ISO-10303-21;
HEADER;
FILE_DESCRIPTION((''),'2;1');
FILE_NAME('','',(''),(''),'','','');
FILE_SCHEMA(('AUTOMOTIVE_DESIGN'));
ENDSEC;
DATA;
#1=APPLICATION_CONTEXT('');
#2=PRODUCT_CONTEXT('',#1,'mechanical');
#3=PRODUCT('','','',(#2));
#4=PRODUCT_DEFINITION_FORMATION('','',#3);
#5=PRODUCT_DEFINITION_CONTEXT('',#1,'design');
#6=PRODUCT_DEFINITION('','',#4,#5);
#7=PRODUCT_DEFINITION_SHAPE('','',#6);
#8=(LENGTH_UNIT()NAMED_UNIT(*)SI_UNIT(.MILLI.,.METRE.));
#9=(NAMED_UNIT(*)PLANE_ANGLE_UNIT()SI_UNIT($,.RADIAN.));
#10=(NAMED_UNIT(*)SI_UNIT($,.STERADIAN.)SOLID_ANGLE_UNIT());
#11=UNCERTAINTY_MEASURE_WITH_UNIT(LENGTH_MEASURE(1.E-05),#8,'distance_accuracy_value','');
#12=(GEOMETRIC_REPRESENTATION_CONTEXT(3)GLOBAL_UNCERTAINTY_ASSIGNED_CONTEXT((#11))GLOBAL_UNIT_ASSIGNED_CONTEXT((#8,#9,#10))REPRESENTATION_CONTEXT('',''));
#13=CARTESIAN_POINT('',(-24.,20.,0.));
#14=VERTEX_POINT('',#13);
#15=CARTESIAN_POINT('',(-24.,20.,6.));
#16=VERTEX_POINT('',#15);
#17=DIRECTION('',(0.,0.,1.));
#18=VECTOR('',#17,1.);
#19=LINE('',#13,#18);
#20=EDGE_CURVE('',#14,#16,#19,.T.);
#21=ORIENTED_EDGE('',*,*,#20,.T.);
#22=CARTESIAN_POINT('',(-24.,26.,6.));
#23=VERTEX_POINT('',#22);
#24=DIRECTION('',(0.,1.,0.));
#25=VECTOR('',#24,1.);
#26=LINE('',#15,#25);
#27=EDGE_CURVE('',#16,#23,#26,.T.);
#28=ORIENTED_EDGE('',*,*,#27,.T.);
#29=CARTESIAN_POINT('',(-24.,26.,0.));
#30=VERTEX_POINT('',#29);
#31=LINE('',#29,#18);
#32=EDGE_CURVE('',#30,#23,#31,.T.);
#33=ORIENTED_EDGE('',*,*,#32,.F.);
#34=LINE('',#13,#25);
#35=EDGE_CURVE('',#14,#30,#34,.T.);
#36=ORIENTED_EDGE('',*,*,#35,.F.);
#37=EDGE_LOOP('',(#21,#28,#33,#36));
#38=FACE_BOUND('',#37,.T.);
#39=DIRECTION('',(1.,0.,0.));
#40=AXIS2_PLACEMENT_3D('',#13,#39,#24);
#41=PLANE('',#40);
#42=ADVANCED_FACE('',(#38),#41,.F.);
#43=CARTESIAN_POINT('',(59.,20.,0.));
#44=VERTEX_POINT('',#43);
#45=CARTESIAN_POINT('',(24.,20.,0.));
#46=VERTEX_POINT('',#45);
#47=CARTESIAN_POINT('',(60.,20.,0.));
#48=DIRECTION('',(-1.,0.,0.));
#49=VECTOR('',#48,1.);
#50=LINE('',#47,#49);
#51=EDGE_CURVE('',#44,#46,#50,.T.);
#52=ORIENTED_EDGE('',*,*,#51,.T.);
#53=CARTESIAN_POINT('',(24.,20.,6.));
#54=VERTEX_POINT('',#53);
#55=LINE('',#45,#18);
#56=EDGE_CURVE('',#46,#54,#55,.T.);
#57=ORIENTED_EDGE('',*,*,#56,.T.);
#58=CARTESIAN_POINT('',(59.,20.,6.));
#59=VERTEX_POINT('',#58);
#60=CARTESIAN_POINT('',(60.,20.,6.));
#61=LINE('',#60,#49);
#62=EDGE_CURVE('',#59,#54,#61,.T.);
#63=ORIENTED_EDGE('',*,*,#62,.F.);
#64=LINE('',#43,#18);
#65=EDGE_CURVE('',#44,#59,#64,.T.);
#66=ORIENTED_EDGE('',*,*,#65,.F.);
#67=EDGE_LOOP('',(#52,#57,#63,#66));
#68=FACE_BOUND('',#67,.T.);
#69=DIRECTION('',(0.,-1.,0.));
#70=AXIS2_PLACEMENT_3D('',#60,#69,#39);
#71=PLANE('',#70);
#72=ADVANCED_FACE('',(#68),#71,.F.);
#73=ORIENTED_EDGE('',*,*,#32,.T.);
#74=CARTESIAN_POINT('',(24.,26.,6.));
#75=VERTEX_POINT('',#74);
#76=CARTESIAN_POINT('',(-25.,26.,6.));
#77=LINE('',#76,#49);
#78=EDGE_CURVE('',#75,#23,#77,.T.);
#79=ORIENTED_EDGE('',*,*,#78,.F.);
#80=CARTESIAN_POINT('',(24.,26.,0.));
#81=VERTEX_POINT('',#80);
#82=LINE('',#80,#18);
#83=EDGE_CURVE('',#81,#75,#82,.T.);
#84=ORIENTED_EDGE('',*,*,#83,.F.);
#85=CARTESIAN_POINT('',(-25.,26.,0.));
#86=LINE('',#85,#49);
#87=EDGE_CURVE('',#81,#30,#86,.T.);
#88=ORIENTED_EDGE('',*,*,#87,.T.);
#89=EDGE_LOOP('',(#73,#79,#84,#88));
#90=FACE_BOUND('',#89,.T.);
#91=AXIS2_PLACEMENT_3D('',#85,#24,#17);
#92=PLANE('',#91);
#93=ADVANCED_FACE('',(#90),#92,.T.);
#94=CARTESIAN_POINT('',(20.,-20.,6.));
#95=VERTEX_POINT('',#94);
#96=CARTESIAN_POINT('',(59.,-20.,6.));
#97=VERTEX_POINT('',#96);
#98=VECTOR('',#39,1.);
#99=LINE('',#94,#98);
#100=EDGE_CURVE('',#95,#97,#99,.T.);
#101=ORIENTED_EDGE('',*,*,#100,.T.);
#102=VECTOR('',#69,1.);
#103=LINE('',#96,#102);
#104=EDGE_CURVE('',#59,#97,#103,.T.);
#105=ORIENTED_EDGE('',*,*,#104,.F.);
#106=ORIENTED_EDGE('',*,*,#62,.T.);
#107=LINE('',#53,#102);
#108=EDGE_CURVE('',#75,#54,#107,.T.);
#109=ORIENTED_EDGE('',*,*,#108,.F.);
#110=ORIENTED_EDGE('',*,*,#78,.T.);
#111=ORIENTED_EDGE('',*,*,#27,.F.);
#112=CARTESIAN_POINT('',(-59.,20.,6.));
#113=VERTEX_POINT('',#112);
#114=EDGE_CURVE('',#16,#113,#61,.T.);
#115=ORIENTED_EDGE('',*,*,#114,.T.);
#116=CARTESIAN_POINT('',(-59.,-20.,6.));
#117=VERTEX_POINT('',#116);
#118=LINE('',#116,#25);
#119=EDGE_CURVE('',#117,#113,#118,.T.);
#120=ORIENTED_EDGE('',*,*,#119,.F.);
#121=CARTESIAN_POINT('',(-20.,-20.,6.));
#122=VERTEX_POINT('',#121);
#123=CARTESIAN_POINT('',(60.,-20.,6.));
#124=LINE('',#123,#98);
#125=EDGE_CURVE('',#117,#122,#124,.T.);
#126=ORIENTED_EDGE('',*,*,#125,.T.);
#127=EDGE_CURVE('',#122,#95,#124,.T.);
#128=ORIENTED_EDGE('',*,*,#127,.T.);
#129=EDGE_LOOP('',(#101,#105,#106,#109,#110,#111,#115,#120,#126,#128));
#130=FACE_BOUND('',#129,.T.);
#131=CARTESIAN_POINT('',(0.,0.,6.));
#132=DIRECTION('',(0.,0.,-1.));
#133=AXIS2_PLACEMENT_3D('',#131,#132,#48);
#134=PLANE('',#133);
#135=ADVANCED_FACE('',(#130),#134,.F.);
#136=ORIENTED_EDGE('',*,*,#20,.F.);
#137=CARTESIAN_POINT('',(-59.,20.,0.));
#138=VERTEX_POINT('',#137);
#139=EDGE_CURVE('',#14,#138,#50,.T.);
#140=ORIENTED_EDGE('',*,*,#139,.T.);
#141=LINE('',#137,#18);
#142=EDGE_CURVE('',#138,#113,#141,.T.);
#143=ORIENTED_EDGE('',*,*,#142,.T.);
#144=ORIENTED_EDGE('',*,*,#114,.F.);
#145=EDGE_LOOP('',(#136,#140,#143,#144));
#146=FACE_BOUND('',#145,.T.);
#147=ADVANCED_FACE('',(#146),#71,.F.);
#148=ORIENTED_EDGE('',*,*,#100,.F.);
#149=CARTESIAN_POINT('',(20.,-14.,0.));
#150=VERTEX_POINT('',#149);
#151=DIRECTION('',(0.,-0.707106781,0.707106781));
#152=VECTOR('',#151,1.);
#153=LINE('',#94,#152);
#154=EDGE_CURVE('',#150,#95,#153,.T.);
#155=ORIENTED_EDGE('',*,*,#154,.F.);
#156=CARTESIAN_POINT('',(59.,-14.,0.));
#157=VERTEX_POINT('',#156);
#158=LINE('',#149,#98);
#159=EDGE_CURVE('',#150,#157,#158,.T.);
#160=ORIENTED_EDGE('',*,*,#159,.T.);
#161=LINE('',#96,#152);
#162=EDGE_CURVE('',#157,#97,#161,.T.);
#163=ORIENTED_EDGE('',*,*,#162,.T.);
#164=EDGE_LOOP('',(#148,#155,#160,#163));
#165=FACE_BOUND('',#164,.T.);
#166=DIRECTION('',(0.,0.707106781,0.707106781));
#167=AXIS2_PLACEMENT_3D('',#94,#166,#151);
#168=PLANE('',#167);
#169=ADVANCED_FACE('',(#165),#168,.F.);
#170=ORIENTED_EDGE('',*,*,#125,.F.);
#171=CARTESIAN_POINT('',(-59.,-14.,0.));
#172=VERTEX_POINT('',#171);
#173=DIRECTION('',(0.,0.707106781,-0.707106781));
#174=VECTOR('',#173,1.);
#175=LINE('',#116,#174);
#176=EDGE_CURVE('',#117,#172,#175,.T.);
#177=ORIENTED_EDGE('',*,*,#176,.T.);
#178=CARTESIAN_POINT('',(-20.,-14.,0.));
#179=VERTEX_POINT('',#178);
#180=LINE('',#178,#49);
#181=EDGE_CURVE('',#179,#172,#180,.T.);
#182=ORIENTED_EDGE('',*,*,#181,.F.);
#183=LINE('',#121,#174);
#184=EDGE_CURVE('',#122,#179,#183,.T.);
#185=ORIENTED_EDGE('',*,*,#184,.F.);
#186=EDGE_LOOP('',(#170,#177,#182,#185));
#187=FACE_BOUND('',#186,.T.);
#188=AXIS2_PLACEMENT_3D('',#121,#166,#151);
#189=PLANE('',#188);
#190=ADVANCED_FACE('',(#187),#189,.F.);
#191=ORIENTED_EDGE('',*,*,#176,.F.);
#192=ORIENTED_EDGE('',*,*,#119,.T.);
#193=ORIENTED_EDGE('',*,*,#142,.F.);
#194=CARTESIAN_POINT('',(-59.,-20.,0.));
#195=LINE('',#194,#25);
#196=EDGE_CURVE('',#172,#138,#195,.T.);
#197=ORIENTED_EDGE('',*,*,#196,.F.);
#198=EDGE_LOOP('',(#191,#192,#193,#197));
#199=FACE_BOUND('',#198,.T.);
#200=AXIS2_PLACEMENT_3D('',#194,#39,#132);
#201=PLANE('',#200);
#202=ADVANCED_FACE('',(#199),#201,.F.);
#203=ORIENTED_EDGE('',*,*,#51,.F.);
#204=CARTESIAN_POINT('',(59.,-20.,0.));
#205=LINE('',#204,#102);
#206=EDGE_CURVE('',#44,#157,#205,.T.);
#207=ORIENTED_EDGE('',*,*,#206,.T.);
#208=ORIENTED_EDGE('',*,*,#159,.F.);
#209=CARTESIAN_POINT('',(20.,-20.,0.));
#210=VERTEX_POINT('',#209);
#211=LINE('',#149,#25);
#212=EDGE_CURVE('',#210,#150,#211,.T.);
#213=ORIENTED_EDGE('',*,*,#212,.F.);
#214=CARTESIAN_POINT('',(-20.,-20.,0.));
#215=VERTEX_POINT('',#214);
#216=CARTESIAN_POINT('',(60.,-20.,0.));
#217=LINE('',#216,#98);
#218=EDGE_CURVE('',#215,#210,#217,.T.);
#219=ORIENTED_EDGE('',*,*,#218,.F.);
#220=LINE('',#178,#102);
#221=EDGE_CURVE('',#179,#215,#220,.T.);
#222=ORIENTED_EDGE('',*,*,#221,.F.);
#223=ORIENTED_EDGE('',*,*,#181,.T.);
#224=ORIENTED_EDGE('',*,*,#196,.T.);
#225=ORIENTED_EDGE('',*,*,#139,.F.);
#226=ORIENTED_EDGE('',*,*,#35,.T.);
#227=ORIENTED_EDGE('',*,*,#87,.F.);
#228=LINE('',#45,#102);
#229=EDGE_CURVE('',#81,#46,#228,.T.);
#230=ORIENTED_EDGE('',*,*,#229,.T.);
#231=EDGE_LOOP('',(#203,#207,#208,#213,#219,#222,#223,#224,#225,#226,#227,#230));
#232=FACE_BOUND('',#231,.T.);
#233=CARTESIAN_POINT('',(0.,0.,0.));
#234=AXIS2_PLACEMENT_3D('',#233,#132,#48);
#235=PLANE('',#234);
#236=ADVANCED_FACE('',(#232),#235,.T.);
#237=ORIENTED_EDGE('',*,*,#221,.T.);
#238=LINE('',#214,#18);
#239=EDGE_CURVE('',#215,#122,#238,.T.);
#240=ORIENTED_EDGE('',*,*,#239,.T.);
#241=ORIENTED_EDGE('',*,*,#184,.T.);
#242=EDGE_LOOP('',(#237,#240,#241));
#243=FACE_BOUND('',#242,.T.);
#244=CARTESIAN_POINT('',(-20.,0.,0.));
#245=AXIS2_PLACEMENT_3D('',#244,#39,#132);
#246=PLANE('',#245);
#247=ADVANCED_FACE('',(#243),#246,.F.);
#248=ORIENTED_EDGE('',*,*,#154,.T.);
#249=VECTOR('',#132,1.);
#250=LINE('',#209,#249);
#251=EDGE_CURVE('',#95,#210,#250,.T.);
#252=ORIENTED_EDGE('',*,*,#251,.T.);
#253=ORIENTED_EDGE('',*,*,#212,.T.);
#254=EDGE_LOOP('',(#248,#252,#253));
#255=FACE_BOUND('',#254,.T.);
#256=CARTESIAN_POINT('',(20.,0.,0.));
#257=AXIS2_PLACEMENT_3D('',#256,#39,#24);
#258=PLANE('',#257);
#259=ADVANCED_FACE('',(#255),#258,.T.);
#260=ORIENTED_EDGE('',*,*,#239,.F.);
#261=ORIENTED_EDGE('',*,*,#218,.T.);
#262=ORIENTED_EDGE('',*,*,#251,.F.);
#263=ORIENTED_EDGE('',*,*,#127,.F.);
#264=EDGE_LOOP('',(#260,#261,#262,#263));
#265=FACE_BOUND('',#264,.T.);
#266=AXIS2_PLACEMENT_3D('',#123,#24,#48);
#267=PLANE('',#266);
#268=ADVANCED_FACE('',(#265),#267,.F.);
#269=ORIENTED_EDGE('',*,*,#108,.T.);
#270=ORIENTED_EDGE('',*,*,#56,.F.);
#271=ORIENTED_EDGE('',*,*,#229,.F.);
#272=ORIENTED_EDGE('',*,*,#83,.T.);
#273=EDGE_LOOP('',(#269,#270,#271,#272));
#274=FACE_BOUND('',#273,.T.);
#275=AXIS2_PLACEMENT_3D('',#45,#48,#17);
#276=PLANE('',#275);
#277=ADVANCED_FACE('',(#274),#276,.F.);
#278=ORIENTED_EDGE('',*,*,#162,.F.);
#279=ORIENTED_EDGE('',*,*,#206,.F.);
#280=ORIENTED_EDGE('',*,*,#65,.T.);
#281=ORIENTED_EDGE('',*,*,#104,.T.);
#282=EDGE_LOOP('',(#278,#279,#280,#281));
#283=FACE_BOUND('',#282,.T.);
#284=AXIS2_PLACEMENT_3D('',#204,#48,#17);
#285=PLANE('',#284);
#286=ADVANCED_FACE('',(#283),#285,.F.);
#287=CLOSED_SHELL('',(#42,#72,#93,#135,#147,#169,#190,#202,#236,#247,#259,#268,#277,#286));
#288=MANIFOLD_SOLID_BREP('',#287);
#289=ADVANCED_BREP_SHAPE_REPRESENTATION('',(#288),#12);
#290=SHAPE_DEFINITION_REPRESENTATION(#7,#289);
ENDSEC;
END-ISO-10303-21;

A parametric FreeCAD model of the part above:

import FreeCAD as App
import Part
import Sketcher
from FreeCAD import Vector
Q = App.Units.Quantity

doc = App.newDocument("Part")
body = doc.addObject("PartDesign::Body", "Body")

# Sketch on XY plane
sketch1 = body.newObject("Sketcher::SketchObject", "Sketch")
sketch1.AttachmentSupport = (doc.getObject("XY_Plane"), [""])
sketch1.MapMode = "FlatFace"
sketch1.addGeometry([
    Part.LineSegment(Vector(-60, 20, 0), Vector(-60, -20, 0)),
    Part.LineSegment(Vector(-60, -20, 0), Vector(60, -20, 0)),
    Part.LineSegment(Vector(60, -20, 0), Vector(60, 20, 0)),
    Part.LineSegment(Vector(60, 20, 0), Vector(-60, 20, 0)),
], False)
sketch1.addConstraint([
    Sketcher.Constraint("Coincident", 0, 2, 1, 1),
    Sketcher.Constraint("Coincident", 1, 2, 2, 1),
    Sketcher.Constraint("Coincident", 2, 2, 3, 1),
    Sketcher.Constraint("Coincident", 3, 2, 0, 1),
    Sketcher.Constraint("Vertical", 0),
    Sketcher.Constraint("Horizontal", 1),
    Sketcher.Constraint("Vertical", 2),
    Sketcher.Constraint("Horizontal", 3),
    Sketcher.Constraint("Symmetric", 0, 2, 2, 2, -1, 1),
    Sketcher.Constraint("DistanceX", 1, 1, 1, 2, Q("120 mm")),
    Sketcher.Constraint("DistanceY", 0, 2, 0, 1, Q("40 mm")),
])
pad1 = body.newObject("PartDesign::Pad", "Pad")
pad1.Profile = sketch1
pad1.Length = 6

# Sketch on XY plane
sketch2 = body.newObject("Sketcher::SketchObject", "Sketch001")
sketch2.AttachmentSupport = (doc.getObject("XY_Plane"), [""])
sketch2.MapMode = "FlatFace"
sketch2.AttachmentOffset = App.Placement(Vector(0, 0, 6), App.Rotation())
sketch2.addGeometry([
    Part.LineSegment(Vector(-25, 26, 0), Vector(-25, 20, 0)),
    Part.LineSegment(Vector(-25, 20, 0), Vector(25, 20, 0)),
    Part.LineSegment(Vector(25, 20, 0), Vector(25, 26, 0)),
    Part.LineSegment(Vector(25, 26, 0), Vector(-25, 26, 0)),
], False)
sketch2.addConstraint([
    Sketcher.Constraint("Coincident", 0, 2, 1, 1),
    Sketcher.Constraint("Coincident", 1, 2, 2, 1),
    Sketcher.Constraint("Coincident", 2, 2, 3, 1),
    Sketcher.Constraint("Coincident", 3, 2, 0, 1),
    Sketcher.Constraint("Vertical", 0),
    Sketcher.Constraint("Horizontal", 1),
    Sketcher.Constraint("Vertical", 2),
    Sketcher.Constraint("Horizontal", 3),
    Sketcher.Constraint("DistanceX", 1, 1, 1, 2, Q("50 mm")),
    Sketcher.Constraint("DistanceY", 0, 2, 0, 1, Q("6 mm")),
    Sketcher.Constraint("DistanceX", 0, 2, -1, 1, Q("25 mm")),
    Sketcher.Constraint("DistanceY", -1, 1, 0, 2, Q("20 mm")),
])
pad2 = body.newObject("PartDesign::Pad", "Pad001")
pad2.Profile = sketch2
pad2.Length = 6
pad2.Reversed = True

# Sketch on YZ plane
sketch3 = body.newObject("Sketcher::SketchObject", "Sketch002")
sketch3.AttachmentSupport = (doc.getObject("YZ_Plane"), [""])
sketch3.MapMode = "FlatFace"
sketch3.AttachmentOffset = App.Placement(Vector(0, 0, -60), App.Rotation())
sketch3.addGeometry([
    Part.LineSegment(Vector(-20, 6, 0), Vector(-14, 0, 0)),
    Part.LineSegment(Vector(-14, 0, 0), Vector(-20, 0, 0)),
    Part.LineSegment(Vector(-20, 0, 0), Vector(-20, 6, 0)),
], False)
sketch3.addConstraint([
    Sketcher.Constraint("Coincident", 0, 2, 1, 1),
    Sketcher.Constraint("Coincident", 1, 2, 2, 1),
    Sketcher.Constraint("Coincident", 2, 2, 0, 1),
    Sketcher.Constraint("Horizontal", 1),
    Sketcher.Constraint("Vertical", 2),
    Sketcher.Constraint("PointOnObject", 0, 2, -1),
    Sketcher.Constraint("Equal", 1, 2),
    Sketcher.Constraint("DistanceX", 1, 2, 1, 1, Q("6 mm")),
    Sketcher.Constraint("DistanceX", 0, 2, -1, 1, Q("14 mm")),
])
pocket1 = body.newObject("PartDesign::Pocket", "Pocket")
pocket1.Profile = sketch3
pocket1.Length = 40
pocket1.Reversed = True

# Sketch on YZ plane
sketch4 = body.newObject("Sketcher::SketchObject", "Sketch003")
sketch4.AttachmentSupport = (doc.getObject("YZ_Plane"), [""])
sketch4.MapMode = "FlatFace"
sketch4.AttachmentOffset = App.Placement(Vector(0, 0, 60), App.Rotation())
sketch4.addGeometry([
    Part.LineSegment(Vector(-14, 0, 0), Vector(-20, 6, 0)),
    Part.LineSegment(Vector(-20, 6, 0), Vector(-20, 0, 0)),
    Part.LineSegment(Vector(-20, 0, 0), Vector(-14, 0, 0)),
], False)
sketch4.addConstraint([
    Sketcher.Constraint("Coincident", 0, 2, 1, 1),
    Sketcher.Constraint("Coincident", 1, 2, 2, 1),
    Sketcher.Constraint("Coincident", 2, 2, 0, 1),
    Sketcher.Constraint("Vertical", 1),
    Sketcher.Constraint("Horizontal", 2),
    Sketcher.Constraint("PointOnObject", 1, 2, -1),
    Sketcher.Constraint("Equal", 2, 1),
    Sketcher.Constraint("DistanceX", 2, 1, 2, 2, Q("6 mm")),
    Sketcher.Constraint("DistanceX", 0, 2, -1, 1, Q("20 mm")),
])
pocket2 = body.newObject("PartDesign::Pocket", "Pocket001")
pocket2.Profile = sketch4
pocket2.Length = 40

# Sketch on XY plane
sketch5 = body.newObject("Sketcher::SketchObject", "Sketch004")
sketch5.AttachmentSupport = (doc.getObject("XY_Plane"), [""])
sketch5.MapMode = "FlatFace"
sketch5.AttachmentOffset = App.Placement(Vector(0, 0, 6), App.Rotation())
sketch5.addGeometry([
    Part.LineSegment(Vector(59, 20, 0), Vector(59, -20, 0)),  # 0
    Part.LineSegment(Vector(59, -20, 0), Vector(60, -20, 0)),  # 1
    Part.LineSegment(Vector(60, -20, 0), Vector(60, 20, 0)),  # 2
    Part.LineSegment(Vector(60, 20, 0), Vector(59, 20, 0)),  # 3
    Part.LineSegment(Vector(24, 26, 0), Vector(24, 20, 0)),  # 4
    Part.LineSegment(Vector(24, 20, 0), Vector(25, 20, 0)),  # 5
    Part.LineSegment(Vector(25, 20, 0), Vector(25, 26, 0)),  # 6
    Part.LineSegment(Vector(25, 26, 0), Vector(24, 26, 0)),  # 7
    Part.LineSegment(Vector(-25, 26, 0), Vector(-25, 20, 0)),  # 8
    Part.LineSegment(Vector(-25, 20, 0), Vector(-24, 20, 0)),  # 9
    Part.LineSegment(Vector(-24, 20, 0), Vector(-24, 26, 0)),  # 10
    Part.LineSegment(Vector(-24, 26, 0), Vector(-25, 26, 0)),  # 11
    Part.LineSegment(Vector(-60, 20, 0), Vector(-60, -20, 0)),  # 12
    Part.LineSegment(Vector(-60, -20, 0), Vector(-59, -20, 0)),  # 13
    Part.LineSegment(Vector(-59, -20, 0), Vector(-59, 20, 0)),  # 14
    Part.LineSegment(Vector(-59, 20, 0), Vector(-60, 20, 0)),  # 15
], False)
sketch5.addConstraint([
    Sketcher.Constraint("Coincident", 0, 2, 1, 1),
    Sketcher.Constraint("Coincident", 1, 2, 2, 1),
    Sketcher.Constraint("Coincident", 2, 2, 3, 1),
    Sketcher.Constraint("Coincident", 3, 2, 0, 1),
    Sketcher.Constraint("Coincident", 4, 2, 5, 1),
    Sketcher.Constraint("Coincident", 5, 2, 6, 1),
    Sketcher.Constraint("Coincident", 6, 2, 7, 1),
    Sketcher.Constraint("Coincident", 7, 2, 4, 1),
    Sketcher.Constraint("Coincident", 8, 2, 9, 1),
    Sketcher.Constraint("Coincident", 9, 2, 10, 1),
    Sketcher.Constraint("Coincident", 10, 2, 11, 1),
    Sketcher.Constraint("Coincident", 11, 2, 8, 1),
    Sketcher.Constraint("Coincident", 12, 2, 13, 1),
    Sketcher.Constraint("Coincident", 13, 2, 14, 1),
    Sketcher.Constraint("Coincident", 14, 2, 15, 1),
    Sketcher.Constraint("Coincident", 15, 2, 12, 1),
    Sketcher.Constraint("Vertical", 0),
    Sketcher.Constraint("Horizontal", 1),
    Sketcher.Constraint("Vertical", 2),
    Sketcher.Constraint("Horizontal", 3),
    Sketcher.Constraint("Vertical", 4),
    Sketcher.Constraint("Horizontal", 5),
    Sketcher.Constraint("Vertical", 6),
    Sketcher.Constraint("Horizontal", 7),
    Sketcher.Constraint("Vertical", 8),
    Sketcher.Constraint("Horizontal", 9),
    Sketcher.Constraint("Vertical", 10),
    Sketcher.Constraint("Horizontal", 11),
    Sketcher.Constraint("Vertical", 12),
    Sketcher.Constraint("Horizontal", 13),
    Sketcher.Constraint("Vertical", 14),
    Sketcher.Constraint("Horizontal", 15),
    Sketcher.Constraint("Symmetric", 2, 2, 12, 2, -1, 1),
    Sketcher.Constraint("Symmetric", 0, 2, 14, 2, -1, 1),
    Sketcher.Constraint("Symmetric", 5, 2, 8, 2, -2),
    Sketcher.Constraint("Symmetric", 7, 2, 10, 2, -2),
    Sketcher.Constraint("Horizontal", 3, 2, 4, 2),
    Sketcher.Constraint("Horizontal", 1, 2, 12, 2),
    Sketcher.Constraint("Equal", 3, 5),
    Sketcher.Constraint("DistanceX", 1, 1, 1, 2, Q("1 mm")),
    Sketcher.Constraint("DistanceY", 0, 2, 0, 1, Q("40 mm")),
    Sketcher.Constraint("DistanceY", 4, 2, 4, 1, Q("6 mm")),
    Sketcher.Constraint("DistanceX", -1, 1, 0, 2, Q("59 mm")),
    Sketcher.Constraint("DistanceX", -1, 1, 4, 2, Q("24 mm")),
])
pocket3 = body.newObject("PartDesign::Pocket", "Pocket002")
pocket3.Profile = sketch5
pocket3.Type = "ThroughAll"

doc.recompute()
